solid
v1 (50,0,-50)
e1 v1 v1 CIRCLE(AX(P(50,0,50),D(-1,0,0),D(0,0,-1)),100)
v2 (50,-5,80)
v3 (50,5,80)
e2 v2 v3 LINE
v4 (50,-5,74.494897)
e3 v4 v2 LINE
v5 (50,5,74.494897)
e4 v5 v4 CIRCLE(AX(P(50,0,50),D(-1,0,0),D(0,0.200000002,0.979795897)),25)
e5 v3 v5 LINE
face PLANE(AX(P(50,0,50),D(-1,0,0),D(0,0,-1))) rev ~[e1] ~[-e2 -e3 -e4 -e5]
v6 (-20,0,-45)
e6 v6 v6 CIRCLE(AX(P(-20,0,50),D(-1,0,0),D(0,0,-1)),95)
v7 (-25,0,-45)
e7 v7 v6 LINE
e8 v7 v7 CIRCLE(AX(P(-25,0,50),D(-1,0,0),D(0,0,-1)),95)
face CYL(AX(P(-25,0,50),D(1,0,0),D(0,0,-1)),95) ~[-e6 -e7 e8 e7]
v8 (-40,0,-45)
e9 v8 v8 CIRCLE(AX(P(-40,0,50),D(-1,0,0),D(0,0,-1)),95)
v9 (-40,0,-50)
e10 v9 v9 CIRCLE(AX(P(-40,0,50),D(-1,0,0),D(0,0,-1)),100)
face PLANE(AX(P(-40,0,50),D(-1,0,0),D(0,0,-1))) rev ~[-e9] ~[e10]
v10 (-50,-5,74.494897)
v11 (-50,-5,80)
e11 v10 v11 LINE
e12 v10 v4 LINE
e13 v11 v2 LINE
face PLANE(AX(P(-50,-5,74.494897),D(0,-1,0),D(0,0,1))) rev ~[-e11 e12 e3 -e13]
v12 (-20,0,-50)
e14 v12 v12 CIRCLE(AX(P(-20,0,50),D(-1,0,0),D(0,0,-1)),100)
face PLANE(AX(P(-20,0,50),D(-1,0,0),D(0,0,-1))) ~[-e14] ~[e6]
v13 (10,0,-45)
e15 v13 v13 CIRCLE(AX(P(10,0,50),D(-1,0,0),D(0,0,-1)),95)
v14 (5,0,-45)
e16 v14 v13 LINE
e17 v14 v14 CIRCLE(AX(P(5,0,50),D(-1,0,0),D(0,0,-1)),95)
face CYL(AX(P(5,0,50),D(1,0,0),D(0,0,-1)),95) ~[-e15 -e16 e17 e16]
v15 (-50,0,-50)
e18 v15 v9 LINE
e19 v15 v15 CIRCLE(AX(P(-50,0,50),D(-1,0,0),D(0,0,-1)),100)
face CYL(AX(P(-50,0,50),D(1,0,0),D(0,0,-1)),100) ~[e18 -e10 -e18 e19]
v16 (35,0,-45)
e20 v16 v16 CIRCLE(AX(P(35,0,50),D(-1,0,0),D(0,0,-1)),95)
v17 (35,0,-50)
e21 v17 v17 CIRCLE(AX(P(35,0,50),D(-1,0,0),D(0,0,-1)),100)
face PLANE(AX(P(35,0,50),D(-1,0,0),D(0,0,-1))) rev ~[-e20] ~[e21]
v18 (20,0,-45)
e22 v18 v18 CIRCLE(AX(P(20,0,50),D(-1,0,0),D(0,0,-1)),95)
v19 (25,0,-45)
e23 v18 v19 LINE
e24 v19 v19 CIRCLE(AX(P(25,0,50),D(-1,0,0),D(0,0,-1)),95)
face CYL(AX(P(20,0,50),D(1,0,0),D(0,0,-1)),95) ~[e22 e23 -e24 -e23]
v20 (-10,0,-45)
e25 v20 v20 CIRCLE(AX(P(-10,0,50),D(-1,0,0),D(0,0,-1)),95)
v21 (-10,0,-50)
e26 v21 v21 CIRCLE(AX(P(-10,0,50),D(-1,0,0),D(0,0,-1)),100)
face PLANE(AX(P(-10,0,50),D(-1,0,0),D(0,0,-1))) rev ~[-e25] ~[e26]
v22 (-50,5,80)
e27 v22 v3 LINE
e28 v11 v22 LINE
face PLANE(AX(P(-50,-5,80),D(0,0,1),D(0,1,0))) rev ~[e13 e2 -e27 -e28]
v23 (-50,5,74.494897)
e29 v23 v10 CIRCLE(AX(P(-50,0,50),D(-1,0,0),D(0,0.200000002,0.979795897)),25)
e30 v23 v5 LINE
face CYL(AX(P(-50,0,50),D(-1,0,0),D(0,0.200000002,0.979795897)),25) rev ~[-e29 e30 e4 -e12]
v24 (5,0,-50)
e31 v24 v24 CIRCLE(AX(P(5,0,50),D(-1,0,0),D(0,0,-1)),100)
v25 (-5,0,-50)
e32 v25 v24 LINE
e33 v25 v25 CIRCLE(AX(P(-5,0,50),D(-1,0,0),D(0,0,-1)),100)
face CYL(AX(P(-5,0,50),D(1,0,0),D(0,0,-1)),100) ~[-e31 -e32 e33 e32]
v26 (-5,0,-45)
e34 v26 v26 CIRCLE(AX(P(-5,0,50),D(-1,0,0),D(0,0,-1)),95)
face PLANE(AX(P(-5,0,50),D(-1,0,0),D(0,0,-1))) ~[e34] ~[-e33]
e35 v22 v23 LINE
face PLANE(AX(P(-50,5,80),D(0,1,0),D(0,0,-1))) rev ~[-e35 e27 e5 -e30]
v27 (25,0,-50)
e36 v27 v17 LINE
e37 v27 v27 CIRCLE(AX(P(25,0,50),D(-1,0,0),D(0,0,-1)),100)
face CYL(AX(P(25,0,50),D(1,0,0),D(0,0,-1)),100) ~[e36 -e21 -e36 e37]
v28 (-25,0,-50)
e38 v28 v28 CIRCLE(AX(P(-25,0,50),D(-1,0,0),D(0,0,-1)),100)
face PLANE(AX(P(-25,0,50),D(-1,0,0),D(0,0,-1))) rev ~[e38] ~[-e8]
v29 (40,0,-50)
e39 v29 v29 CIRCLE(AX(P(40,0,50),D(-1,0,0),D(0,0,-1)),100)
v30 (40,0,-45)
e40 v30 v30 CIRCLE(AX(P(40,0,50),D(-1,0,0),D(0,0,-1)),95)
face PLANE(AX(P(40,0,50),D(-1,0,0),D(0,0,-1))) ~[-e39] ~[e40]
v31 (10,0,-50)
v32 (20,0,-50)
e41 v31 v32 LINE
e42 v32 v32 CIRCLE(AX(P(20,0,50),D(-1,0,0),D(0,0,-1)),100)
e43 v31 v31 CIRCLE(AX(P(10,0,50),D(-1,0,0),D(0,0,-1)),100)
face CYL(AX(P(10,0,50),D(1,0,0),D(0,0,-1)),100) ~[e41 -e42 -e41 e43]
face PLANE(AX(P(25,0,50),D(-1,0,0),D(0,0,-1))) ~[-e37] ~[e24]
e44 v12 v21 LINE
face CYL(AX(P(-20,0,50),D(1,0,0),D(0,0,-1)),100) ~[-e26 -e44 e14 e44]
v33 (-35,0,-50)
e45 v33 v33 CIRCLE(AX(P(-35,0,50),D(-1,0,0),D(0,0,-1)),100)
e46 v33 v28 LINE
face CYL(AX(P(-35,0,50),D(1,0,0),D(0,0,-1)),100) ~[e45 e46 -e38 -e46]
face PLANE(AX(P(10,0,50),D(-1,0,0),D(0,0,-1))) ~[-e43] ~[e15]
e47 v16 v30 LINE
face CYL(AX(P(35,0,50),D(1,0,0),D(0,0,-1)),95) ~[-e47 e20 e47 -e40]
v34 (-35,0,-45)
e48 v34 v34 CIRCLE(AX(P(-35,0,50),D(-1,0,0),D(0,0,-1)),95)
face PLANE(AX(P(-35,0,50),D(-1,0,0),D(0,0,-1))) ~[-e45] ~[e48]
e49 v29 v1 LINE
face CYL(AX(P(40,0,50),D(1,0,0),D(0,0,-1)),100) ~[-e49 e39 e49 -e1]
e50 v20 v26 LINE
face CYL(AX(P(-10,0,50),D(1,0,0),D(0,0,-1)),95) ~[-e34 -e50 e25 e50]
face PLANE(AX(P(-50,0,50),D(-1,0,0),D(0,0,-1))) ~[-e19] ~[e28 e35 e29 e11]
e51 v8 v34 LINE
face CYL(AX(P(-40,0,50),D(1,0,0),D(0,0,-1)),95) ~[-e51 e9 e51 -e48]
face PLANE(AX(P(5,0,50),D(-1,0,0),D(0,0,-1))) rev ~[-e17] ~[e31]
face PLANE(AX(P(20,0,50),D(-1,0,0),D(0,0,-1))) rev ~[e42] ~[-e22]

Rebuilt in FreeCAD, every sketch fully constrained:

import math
import FreeCAD as App
import Part
import Sketcher
Q = App.Units.Quantity


def add_polygon(sketch, points):
    """Adds a closed chain of lines whose ends are joined by coincident constraints."""
    first, n = sketch.GeometryCount, len(points)
    for a, b in zip(points, points[1:] + points[:1]):
        sketch.addGeometry(Part.LineSegment(App.Vector(*a, 0), App.Vector(*b, 0)), False)
    for i in range(n):
        sketch.addConstraint(Sketcher.Constraint("Coincident", first + i, 2, first + (i + 1) % n, 1))

doc = App.newDocument("Part")
params = doc.addObject("Spreadsheet::Sheet", "Params")
for row, (alias, value) in enumerate([
    ("sketch1_width", "10 mm"),
    ("sketch1_width2", "100 mm"),
    ("revolution_angle", "360 deg"),
    ("sketch2_radius", "25 mm"),
    ("sketch2_width", "10 mm"),
    ("pocket1_length", "100 mm"),
], start=1):
    params.set(f"A{row}", alias)
    params.set(f"B{row}", "=" + value)
    params.setAlias(f"B{row}", alias)

body = doc.addObject("PartDesign::Body", "Body")

# Sketch on XZ plane
sketch1 = body.newObject("Sketcher::SketchObject", "Sketch")
sketch1.AttachmentSupport = (doc.getObject("XZ_Plane"), [""])
sketch1.MapMode = "FlatFace"
add_polygon(sketch1, [(40, -50), (50, -50), (50, 50), (-50, 50), (-50, -50), (-40, -50), (-40, -45), (-35, -45), (-35, -50), (-25, -50), (-25, -45), (-20, -45), (-20, -50), (-10, -50), (-10, -45), (-5, -45), (-5, -50), (5, -50), (5, -45), (10, -45), (10, -50), (20, -50), (20, -45), (25, -45), (25, -50), (35, -50), (35, -45), (40, -45)])  # lines 0-27
sketch1.addGeometry(Part.LineSegment(App.Vector(50, 50, 0), App.Vector(-50, 50, 0)), True)  # axis
sketch1.addConstraint(Sketcher.Constraint("Horizontal", 0))
sketch1.addConstraint(Sketcher.Constraint("Vertical", 1))
sketch1.addConstraint(Sketcher.Constraint("Horizontal", 2))
sketch1.addConstraint(Sketcher.Constraint("Vertical", 3))
sketch1.addConstraint(Sketcher.Constraint("Horizontal", 4))
sketch1.addConstraint(Sketcher.Constraint("Vertical", 5))
sketch1.addConstraint(Sketcher.Constraint("Horizontal", 6))
sketch1.addConstraint(Sketcher.Constraint("Vertical", 7))
sketch1.addConstraint(Sketcher.Constraint("Horizontal", 8))
sketch1.addConstraint(Sketcher.Constraint("Vertical", 9))
sketch1.addConstraint(Sketcher.Constraint("Horizontal", 10))
sketch1.addConstraint(Sketcher.Constraint("Vertical", 11))
sketch1.addConstraint(Sketcher.Constraint("Horizontal", 12))
sketch1.addConstraint(Sketcher.Constraint("Vertical", 13))
sketch1.addConstraint(Sketcher.Constraint("Horizontal", 14))
sketch1.addConstraint(Sketcher.Constraint("Vertical", 15))
sketch1.addConstraint(Sketcher.Constraint("Horizontal", 16))
sketch1.addConstraint(Sketcher.Constraint("Vertical", 17))
sketch1.addConstraint(Sketcher.Constraint("Horizontal", 18))
sketch1.addConstraint(Sketcher.Constraint("Vertical", 19))
sketch1.addConstraint(Sketcher.Constraint("Horizontal", 20))
sketch1.addConstraint(Sketcher.Constraint("Vertical", 21))
sketch1.addConstraint(Sketcher.Constraint("Horizontal", 22))
sketch1.addConstraint(Sketcher.Constraint("Vertical", 23))
sketch1.addConstraint(Sketcher.Constraint("Horizontal", 24))
sketch1.addConstraint(Sketcher.Constraint("Vertical", 25))
sketch1.addConstraint(Sketcher.Constraint("Horizontal", 26))
sketch1.addConstraint(Sketcher.Constraint("Vertical", 27))
sketch1.addConstraint(Sketcher.Constraint("Horizontal", 28))
sketch1.addConstraint(Sketcher.Constraint("Coincident", 28, 1, 1, 2))
sketch1.addConstraint(Sketcher.Constraint("Symmetric", 0, 2, 2, 2, -1, 1))
sketch1.addConstraint(Sketcher.Constraint("Symmetric", 14, 2, 17, 2, -2))
sketch1.addConstraint(Sketcher.Constraint("Symmetric", 12, 2, 19, 2, -2))
sketch1.addConstraint(Sketcher.Constraint("Symmetric", 10, 2, 21, 2, -2))
sketch1.addConstraint(Sketcher.Constraint("Symmetric", 8, 2, 23, 2, -2))
sketch1.addConstraint(Sketcher.Constraint("Symmetric", 6, 2, 25, 2, -2))
sketch1.addConstraint(Sketcher.Constraint("Symmetric", 4, 2, 27, 2, -2))
sketch1.addConstraint(Sketcher.Constraint("Horizontal", 4, 2, 7, 2))
sketch1.addConstraint(Sketcher.Constraint("Horizontal", 6, 2, 9, 2))
sketch1.addConstraint(Sketcher.Constraint("Horizontal", 8, 2, 11, 2))
sketch1.addConstraint(Sketcher.Constraint("Horizontal", 10, 2, 13, 2))
sketch1.addConstraint(Sketcher.Constraint("Horizontal", 12, 2, 15, 2))
sketch1.addConstraint(Sketcher.Constraint("Vertical", 3, 2, 28, 2))
sketch1.addConstraint(Sketcher.Constraint("Equal", 4, 8))
sketch1.addConstraint(Sketcher.Constraint("Equal", 6, 10))
sketch1.addConstraint(Sketcher.Constraint("Equal", 8, 12))
sketch1.addConstraint(Sketcher.Constraint("Equal", 10, 14))
sketch1.addConstraint(Sketcher.Constraint("Equal", 12, 16))
sketch1.addConstraint(Sketcher.Constraint("Equal", 28, 1))
sketch1.addConstraint(Sketcher.Constraint("Equal", 26, 5))
sketch1.addConstraint(Sketcher.Constraint("DistanceX", 0, 1, 0, 2, Q("10 mm")))
sketch1.addConstraint(Sketcher.Constraint("DistanceX", 2, 2, 2, 1, Q("100 mm")))
sketch1.setExpression("Constraints[78]", "Params.sketch1_width")
sketch1.setExpression("Constraints[79]", "Params.sketch1_width2")
revolution = body.newObject("PartDesign::Revolution", "Revolution")
revolution.Profile = sketch1
revolution.ReferenceAxis = (sketch1, ["Axis0"])
revolution.setExpression("Angle", "Params.revolution_angle")

# Sketch on YZ plane
sketch2 = body.newObject("Sketcher::SketchObject", "Sketch001")
sketch2.AttachmentSupport = (doc.getObject("YZ_Plane"), [""])
sketch2.MapMode = "FlatFace"
sketch2.AttachmentOffset = App.Placement(App.Vector(0, 0, -50), App.Rotation())
sketch2.addGeometry(Part.LineSegment(App.Vector(5, 80, 0), App.Vector(5, 74.494897, 0)), False)
sketch2.addGeometry(Part.ArcOfCircle(Part.Circle(App.Vector(0, 50, 0), App.Vector(0, 0, 1), 25), math.radians(101.536959), math.radians(438.463041)), False)
sketch2.addGeometry(Part.LineSegment(App.Vector(-5, 74.494897, 0), App.Vector(-5, 80, 0)), False)
sketch2.addGeometry(Part.LineSegment(App.Vector(-5, 80, 0), App.Vector(5, 80, 0)), False)
sketch2.addConstraint(Sketcher.Constraint("Coincident", 0, 2, 1, 2))
sketch2.addConstraint(Sketcher.Constraint("Coincident", 1, 1, 2, 1))
sketch2.addConstraint(Sketcher.Constraint("Coincident", 2, 2, 3, 1))
sketch2.addConstraint(Sketcher.Constraint("Coincident", 3, 2, 0, 1))
sketch2.addConstraint(Sketcher.Constraint("Vertical", 0))
sketch2.addConstraint(Sketcher.Constraint("Vertical", 2))
sketch2.addConstraint(Sketcher.Constraint("Horizontal", 3))
sketch2.addConstraint(Sketcher.Constraint("Symmetric", 0, 2, 1, 1, -2))
sketch2.addConstraint(Sketcher.Constraint("Radius", 1, Q("25 mm")))
sketch2.addConstraint(Sketcher.Constraint("DistanceX", 3, 1, 3, 2, Q("10 mm")))
sketch2.addConstraint(Sketcher.Constraint("DistanceY", -1, 1, 1, 3, Q("50 mm")))
sketch2.addConstraint(Sketcher.Constraint("DistanceY", -1, 1, 2, 2, Q("80 mm")))
sketch2.setExpression("Constraints[8]", "Params.sketch2_radius")
sketch2.setExpression("Constraints[9]", "Params.sketch2_width")
pocket1 = body.newObject("PartDesign::Pocket", "Pocket")
pocket1.Profile = sketch2
pocket1.setExpression("Length", "Params.pocket1_length")
pocket1.Reversed = True

doc.recompute()
